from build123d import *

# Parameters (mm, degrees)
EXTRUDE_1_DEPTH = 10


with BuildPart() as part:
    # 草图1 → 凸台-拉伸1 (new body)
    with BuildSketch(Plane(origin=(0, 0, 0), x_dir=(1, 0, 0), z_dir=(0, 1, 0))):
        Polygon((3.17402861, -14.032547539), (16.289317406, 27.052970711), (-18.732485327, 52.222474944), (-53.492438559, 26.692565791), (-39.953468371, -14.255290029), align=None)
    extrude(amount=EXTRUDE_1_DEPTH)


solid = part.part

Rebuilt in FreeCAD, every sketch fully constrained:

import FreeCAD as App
import Part
import Sketcher
Q = App.Units.Quantity

doc = App.newDocument("Part")
body = doc.addObject("PartDesign::Body", "Body")

sketch1 = doc.addObject("Sketcher::SketchObject", "Sketch")
body.addObject(sketch1)
sketch1.AttachmentSupport = (doc.XZ_Plane, [""])
sketch1.MapMode = "FlatFace"
sketch1.addGeometry(Part.LineSegment(App.Vector(3.174029, 14.032548, 0), App.Vector(16.289317, -27.052971, 0)), False)
sketch1.addGeometry(Part.LineSegment(App.Vector(16.289317, -27.052971, 0), App.Vector(-18.732485, -52.222475, 0)), False)
sketch1.addGeometry(Part.LineSegment(App.Vector(-18.732485, -52.222475, 0), App.Vector(-53.492439, -26.692566, 0)), False)
sketch1.addGeometry(Part.LineSegment(App.Vector(-53.492439, -26.692566, 0), App.Vector(-39.953468, 14.25529, 0)), False)
sketch1.addGeometry(Part.LineSegment(App.Vector(-39.953468, 14.25529, 0), App.Vector(3.174029, 14.032548, 0)), False)
sketch1.addConstraint(Sketcher.Constraint("Coincident", 0, 2, 1, 1))
sketch1.addConstraint(Sketcher.Constraint("Coincident", 1, 2, 2, 1))
sketch1.addConstraint(Sketcher.Constraint("Coincident", 2, 2, 3, 1))
sketch1.addConstraint(Sketcher.Constraint("Coincident", 3, 2, 4, 1))
sketch1.addConstraint(Sketcher.Constraint("Coincident", 4, 2, 0, 1))
sketch1.addConstraint(Sketcher.Constraint("Equal", 0, 1))
sketch1.addConstraint(Sketcher.Constraint("Equal", 1, 2))
sketch1.addConstraint(Sketcher.Constraint("Equal", 2, 3))
sketch1.addConstraint(Sketcher.Constraint("Equal", 3, 4))
sketch1.addConstraint(Sketcher.Constraint("DistanceY", 0, 2, -1, 1, Q("27.052971 mm")))
sketch1.addConstraint(Sketcher.Constraint("DistanceX", 2, 2, -1, 1, Q("53.492439 mm")))
sketch1.addConstraint(Sketcher.Constraint("DistanceX", 3, 2, -1, 1, Q("39.953468 mm")))
sketch1.addConstraint(Sketcher.Constraint("DistanceY", -1, 1, 3, 2, Q("14.25529 mm")))
sketch1.addConstraint(Sketcher.Constraint("DistanceX", -1, 1, 4, 2, Q("3.174029 mm")))
sketch1.addConstraint(Sketcher.Constraint("DistanceY", 1, 2, 2, 2, Q("25.529909 mm")))
pad1 = doc.addObject("PartDesign::Pad", "Pad")
body.addObject(pad1)
pad1.Profile = sketch1
pad1.Length = 10
pad1.Reversed = True

doc.recompute()
